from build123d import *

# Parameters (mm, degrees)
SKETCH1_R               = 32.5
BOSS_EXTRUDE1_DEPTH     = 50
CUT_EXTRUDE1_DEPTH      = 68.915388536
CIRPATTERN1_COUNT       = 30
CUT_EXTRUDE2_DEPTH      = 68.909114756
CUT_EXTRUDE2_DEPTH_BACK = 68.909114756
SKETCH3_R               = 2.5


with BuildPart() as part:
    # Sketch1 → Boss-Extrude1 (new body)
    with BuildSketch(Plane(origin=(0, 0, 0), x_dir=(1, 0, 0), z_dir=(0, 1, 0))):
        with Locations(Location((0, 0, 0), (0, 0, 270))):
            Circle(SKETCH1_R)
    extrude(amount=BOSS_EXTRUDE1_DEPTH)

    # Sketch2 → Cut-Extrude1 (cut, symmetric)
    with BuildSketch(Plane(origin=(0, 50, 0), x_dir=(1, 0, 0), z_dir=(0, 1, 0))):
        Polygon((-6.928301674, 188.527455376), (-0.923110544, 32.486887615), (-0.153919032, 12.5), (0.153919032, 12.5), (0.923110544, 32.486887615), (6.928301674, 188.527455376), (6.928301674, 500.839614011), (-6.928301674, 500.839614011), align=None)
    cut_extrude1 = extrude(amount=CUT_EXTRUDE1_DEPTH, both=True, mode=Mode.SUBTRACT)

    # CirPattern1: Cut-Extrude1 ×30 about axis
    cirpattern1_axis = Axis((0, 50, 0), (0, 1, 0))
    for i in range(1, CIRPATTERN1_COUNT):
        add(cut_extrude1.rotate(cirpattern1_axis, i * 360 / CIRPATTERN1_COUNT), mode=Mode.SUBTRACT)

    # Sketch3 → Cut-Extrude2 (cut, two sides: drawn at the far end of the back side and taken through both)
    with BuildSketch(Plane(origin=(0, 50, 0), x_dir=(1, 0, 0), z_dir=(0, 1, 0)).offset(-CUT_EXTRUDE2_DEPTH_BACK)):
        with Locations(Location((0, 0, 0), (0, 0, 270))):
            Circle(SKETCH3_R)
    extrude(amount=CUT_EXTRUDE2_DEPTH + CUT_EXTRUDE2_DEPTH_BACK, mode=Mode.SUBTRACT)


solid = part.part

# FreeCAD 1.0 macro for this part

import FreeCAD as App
import Part
import Sketcher
Q = App.Units.Quantity

doc = App.newDocument("Part")
body = doc.addObject("PartDesign::Body", "Body")

# Sketch on XZ plane
sketch1 = body.newObject("Sketcher::SketchObject", "Sketch")
sketch1.AttachmentSupport = (doc.getObject("XZ_Plane"), [""])
sketch1.MapMode = "FlatFace"
sketch1.addGeometry(Part.Circle(App.Vector(0, 0, 0), App.Vector(0, 0, 1), 32.5), False)
sketch1.addConstraint(Sketcher.Constraint("Coincident", 0, 3, -1, 1))
sketch1.addConstraint(Sketcher.Constraint("Diameter", 0, Q("65 mm")))
pad1 = body.newObject("PartDesign::Pad", "Pad")
pad1.Profile = sketch1
pad1.Length = 50
pad1.Reversed = True

# Sketch on XZ plane
sketch2 = body.newObject("Sketcher::SketchObject", "Sketch001")
sketch2.AttachmentSupport = (doc.getObject("XZ_Plane"), [""])
sketch2.MapMode = "FlatFace"
sketch2.AttachmentOffset = App.Placement(App.Vector(0, 0, -50), App.Rotation())
sketch2.addGeometry(Part.LineSegment(App.Vector(-6.928302, -188.527455, 0), App.Vector(-0.923111, -32.486888, 0)), False)
sketch2.addGeometry(Part.LineSegment(App.Vector(-0.923111, -32.486888, 0), App.Vector(-0.153919, -12.5, 0)), False)
sketch2.addGeometry(Part.LineSegment(App.Vector(-0.153919, -12.5, 0), App.Vector(0.153919, -12.5, 0)), False)
sketch2.addGeometry(Part.LineSegment(App.Vector(0.153919, -12.5, 0), App.Vector(0.923111, -32.486888, 0)), False)
sketch2.addGeometry(Part.LineSegment(App.Vector(0.923111, -32.486888, 0), App.Vector(6.928302, -188.527455, 0)), False)
sketch2.addGeometry(Part.LineSegment(App.Vector(6.928302, -188.527455, 0), App.Vector(6.928302, -500.839614, 0)), False)
sketch2.addGeometry(Part.LineSegment(App.Vector(6.928302, -500.839614, 0), App.Vector(-6.928302, -500.839614, 0)), False)
sketch2.addGeometry(Part.LineSegment(App.Vector(-6.928302, -500.839614, 0), App.Vector(-6.928302, -188.527455, 0)), False)
sketch2.addConstraint(Sketcher.Constraint("Coincident", 0, 2, 1, 1))
sketch2.addConstraint(Sketcher.Constraint("Coincident", 1, 2, 2, 1))
sketch2.addConstraint(Sketcher.Constraint("Coincident", 2, 2, 3, 1))
sketch2.addConstraint(Sketcher.Constraint("Coincident", 3, 2, 4, 1))
sketch2.addConstraint(Sketcher.Constraint("Coincident", 4, 2, 5, 1))
sketch2.addConstraint(Sketcher.Constraint("Coincident", 5, 2, 6, 1))
sketch2.addConstraint(Sketcher.Constraint("Coincident", 6, 2, 7, 1))
sketch2.addConstraint(Sketcher.Constraint("Coincident", 7, 2, 0, 1))
sketch2.addConstraint(Sketcher.Constraint("Horizontal", 2))
sketch2.addConstraint(Sketcher.Constraint("Vertical", 5))
sketch2.addConstraint(Sketcher.Constraint("Horizontal", 6))
sketch2.addConstraint(Sketcher.Constraint("Vertical", 7))
sketch2.addConstraint(Sketcher.Constraint("Symmetric", 0, 2, 3, 2, -2))
sketch2.addConstraint(Sketcher.Constraint("Symmetric", 4, 2, 7, 2, -2))
sketch2.addConstraint(Sketcher.Constraint("Parallel", 0, 1))
sketch2.addConstraint(Sketcher.Constraint("Parallel", 3, 4))
sketch2.addConstraint(Sketcher.Constraint("DistanceY", 1, 2, -1, 1, Q("12.5 mm")))
sketch2.addConstraint(Sketcher.Constraint("DistanceX", 2, 1, 2, 2, Q("0.307838 mm")))
sketch2.addConstraint(Sketcher.Constraint("DistanceY", 5, 2, 5, 1, Q("312.312159 mm")))
sketch2.addConstraint(Sketcher.Constraint("DistanceX", -1, 1, 4, 2, Q("6.928302 mm")))
sketch2.addConstraint(Sketcher.Constraint("Distance", 0, Q("156.156079 mm")))
sketch2.addConstraint(Sketcher.Constraint("DistanceX", 0, 2, -1, 1, Q("0.923111 mm")))
pocket1 = body.newObject("PartDesign::Pocket", "Pocket")
pocket1.Profile = sketch2
pocket1.Length = 137.830777
pocket1.Midplane = True
doc.recompute()

polarpattern = body.newObject("PartDesign::PolarPattern", "PolarPattern")
polarpattern.Originals = [pocket1]
polarpattern.Axis = (doc.getObject("Y_Axis"), [""])
polarpattern.Angle = 360
polarpattern.Occurrences = 30
body.Tip = polarpattern

# Sketch on XZ plane
sketch3 = body.newObject("Sketcher::SketchObject", "Sketch002")
sketch3.AttachmentSupport = (doc.getObject("XZ_Plane"), [""])
sketch3.MapMode = "FlatFace"
sketch3.AttachmentOffset = App.Placement(App.Vector(0, 0, -50), App.Rotation())
sketch3.addGeometry(Part.Circle(App.Vector(0, 0, 0), App.Vector(0, 0, 1), 2.5), False)
sketch3.addConstraint(Sketcher.Constraint("Coincident", 0, 3, -1, 1))
sketch3.addConstraint(Sketcher.Constraint("Diameter", 0, Q("5 mm")))
pocket2 = body.newObject("PartDesign::Pocket", "Pocket001")
pocket2.Profile = sketch3
pocket2.Type = "ThroughAll"
pocket2.Midplane = True

doc.recompute()
